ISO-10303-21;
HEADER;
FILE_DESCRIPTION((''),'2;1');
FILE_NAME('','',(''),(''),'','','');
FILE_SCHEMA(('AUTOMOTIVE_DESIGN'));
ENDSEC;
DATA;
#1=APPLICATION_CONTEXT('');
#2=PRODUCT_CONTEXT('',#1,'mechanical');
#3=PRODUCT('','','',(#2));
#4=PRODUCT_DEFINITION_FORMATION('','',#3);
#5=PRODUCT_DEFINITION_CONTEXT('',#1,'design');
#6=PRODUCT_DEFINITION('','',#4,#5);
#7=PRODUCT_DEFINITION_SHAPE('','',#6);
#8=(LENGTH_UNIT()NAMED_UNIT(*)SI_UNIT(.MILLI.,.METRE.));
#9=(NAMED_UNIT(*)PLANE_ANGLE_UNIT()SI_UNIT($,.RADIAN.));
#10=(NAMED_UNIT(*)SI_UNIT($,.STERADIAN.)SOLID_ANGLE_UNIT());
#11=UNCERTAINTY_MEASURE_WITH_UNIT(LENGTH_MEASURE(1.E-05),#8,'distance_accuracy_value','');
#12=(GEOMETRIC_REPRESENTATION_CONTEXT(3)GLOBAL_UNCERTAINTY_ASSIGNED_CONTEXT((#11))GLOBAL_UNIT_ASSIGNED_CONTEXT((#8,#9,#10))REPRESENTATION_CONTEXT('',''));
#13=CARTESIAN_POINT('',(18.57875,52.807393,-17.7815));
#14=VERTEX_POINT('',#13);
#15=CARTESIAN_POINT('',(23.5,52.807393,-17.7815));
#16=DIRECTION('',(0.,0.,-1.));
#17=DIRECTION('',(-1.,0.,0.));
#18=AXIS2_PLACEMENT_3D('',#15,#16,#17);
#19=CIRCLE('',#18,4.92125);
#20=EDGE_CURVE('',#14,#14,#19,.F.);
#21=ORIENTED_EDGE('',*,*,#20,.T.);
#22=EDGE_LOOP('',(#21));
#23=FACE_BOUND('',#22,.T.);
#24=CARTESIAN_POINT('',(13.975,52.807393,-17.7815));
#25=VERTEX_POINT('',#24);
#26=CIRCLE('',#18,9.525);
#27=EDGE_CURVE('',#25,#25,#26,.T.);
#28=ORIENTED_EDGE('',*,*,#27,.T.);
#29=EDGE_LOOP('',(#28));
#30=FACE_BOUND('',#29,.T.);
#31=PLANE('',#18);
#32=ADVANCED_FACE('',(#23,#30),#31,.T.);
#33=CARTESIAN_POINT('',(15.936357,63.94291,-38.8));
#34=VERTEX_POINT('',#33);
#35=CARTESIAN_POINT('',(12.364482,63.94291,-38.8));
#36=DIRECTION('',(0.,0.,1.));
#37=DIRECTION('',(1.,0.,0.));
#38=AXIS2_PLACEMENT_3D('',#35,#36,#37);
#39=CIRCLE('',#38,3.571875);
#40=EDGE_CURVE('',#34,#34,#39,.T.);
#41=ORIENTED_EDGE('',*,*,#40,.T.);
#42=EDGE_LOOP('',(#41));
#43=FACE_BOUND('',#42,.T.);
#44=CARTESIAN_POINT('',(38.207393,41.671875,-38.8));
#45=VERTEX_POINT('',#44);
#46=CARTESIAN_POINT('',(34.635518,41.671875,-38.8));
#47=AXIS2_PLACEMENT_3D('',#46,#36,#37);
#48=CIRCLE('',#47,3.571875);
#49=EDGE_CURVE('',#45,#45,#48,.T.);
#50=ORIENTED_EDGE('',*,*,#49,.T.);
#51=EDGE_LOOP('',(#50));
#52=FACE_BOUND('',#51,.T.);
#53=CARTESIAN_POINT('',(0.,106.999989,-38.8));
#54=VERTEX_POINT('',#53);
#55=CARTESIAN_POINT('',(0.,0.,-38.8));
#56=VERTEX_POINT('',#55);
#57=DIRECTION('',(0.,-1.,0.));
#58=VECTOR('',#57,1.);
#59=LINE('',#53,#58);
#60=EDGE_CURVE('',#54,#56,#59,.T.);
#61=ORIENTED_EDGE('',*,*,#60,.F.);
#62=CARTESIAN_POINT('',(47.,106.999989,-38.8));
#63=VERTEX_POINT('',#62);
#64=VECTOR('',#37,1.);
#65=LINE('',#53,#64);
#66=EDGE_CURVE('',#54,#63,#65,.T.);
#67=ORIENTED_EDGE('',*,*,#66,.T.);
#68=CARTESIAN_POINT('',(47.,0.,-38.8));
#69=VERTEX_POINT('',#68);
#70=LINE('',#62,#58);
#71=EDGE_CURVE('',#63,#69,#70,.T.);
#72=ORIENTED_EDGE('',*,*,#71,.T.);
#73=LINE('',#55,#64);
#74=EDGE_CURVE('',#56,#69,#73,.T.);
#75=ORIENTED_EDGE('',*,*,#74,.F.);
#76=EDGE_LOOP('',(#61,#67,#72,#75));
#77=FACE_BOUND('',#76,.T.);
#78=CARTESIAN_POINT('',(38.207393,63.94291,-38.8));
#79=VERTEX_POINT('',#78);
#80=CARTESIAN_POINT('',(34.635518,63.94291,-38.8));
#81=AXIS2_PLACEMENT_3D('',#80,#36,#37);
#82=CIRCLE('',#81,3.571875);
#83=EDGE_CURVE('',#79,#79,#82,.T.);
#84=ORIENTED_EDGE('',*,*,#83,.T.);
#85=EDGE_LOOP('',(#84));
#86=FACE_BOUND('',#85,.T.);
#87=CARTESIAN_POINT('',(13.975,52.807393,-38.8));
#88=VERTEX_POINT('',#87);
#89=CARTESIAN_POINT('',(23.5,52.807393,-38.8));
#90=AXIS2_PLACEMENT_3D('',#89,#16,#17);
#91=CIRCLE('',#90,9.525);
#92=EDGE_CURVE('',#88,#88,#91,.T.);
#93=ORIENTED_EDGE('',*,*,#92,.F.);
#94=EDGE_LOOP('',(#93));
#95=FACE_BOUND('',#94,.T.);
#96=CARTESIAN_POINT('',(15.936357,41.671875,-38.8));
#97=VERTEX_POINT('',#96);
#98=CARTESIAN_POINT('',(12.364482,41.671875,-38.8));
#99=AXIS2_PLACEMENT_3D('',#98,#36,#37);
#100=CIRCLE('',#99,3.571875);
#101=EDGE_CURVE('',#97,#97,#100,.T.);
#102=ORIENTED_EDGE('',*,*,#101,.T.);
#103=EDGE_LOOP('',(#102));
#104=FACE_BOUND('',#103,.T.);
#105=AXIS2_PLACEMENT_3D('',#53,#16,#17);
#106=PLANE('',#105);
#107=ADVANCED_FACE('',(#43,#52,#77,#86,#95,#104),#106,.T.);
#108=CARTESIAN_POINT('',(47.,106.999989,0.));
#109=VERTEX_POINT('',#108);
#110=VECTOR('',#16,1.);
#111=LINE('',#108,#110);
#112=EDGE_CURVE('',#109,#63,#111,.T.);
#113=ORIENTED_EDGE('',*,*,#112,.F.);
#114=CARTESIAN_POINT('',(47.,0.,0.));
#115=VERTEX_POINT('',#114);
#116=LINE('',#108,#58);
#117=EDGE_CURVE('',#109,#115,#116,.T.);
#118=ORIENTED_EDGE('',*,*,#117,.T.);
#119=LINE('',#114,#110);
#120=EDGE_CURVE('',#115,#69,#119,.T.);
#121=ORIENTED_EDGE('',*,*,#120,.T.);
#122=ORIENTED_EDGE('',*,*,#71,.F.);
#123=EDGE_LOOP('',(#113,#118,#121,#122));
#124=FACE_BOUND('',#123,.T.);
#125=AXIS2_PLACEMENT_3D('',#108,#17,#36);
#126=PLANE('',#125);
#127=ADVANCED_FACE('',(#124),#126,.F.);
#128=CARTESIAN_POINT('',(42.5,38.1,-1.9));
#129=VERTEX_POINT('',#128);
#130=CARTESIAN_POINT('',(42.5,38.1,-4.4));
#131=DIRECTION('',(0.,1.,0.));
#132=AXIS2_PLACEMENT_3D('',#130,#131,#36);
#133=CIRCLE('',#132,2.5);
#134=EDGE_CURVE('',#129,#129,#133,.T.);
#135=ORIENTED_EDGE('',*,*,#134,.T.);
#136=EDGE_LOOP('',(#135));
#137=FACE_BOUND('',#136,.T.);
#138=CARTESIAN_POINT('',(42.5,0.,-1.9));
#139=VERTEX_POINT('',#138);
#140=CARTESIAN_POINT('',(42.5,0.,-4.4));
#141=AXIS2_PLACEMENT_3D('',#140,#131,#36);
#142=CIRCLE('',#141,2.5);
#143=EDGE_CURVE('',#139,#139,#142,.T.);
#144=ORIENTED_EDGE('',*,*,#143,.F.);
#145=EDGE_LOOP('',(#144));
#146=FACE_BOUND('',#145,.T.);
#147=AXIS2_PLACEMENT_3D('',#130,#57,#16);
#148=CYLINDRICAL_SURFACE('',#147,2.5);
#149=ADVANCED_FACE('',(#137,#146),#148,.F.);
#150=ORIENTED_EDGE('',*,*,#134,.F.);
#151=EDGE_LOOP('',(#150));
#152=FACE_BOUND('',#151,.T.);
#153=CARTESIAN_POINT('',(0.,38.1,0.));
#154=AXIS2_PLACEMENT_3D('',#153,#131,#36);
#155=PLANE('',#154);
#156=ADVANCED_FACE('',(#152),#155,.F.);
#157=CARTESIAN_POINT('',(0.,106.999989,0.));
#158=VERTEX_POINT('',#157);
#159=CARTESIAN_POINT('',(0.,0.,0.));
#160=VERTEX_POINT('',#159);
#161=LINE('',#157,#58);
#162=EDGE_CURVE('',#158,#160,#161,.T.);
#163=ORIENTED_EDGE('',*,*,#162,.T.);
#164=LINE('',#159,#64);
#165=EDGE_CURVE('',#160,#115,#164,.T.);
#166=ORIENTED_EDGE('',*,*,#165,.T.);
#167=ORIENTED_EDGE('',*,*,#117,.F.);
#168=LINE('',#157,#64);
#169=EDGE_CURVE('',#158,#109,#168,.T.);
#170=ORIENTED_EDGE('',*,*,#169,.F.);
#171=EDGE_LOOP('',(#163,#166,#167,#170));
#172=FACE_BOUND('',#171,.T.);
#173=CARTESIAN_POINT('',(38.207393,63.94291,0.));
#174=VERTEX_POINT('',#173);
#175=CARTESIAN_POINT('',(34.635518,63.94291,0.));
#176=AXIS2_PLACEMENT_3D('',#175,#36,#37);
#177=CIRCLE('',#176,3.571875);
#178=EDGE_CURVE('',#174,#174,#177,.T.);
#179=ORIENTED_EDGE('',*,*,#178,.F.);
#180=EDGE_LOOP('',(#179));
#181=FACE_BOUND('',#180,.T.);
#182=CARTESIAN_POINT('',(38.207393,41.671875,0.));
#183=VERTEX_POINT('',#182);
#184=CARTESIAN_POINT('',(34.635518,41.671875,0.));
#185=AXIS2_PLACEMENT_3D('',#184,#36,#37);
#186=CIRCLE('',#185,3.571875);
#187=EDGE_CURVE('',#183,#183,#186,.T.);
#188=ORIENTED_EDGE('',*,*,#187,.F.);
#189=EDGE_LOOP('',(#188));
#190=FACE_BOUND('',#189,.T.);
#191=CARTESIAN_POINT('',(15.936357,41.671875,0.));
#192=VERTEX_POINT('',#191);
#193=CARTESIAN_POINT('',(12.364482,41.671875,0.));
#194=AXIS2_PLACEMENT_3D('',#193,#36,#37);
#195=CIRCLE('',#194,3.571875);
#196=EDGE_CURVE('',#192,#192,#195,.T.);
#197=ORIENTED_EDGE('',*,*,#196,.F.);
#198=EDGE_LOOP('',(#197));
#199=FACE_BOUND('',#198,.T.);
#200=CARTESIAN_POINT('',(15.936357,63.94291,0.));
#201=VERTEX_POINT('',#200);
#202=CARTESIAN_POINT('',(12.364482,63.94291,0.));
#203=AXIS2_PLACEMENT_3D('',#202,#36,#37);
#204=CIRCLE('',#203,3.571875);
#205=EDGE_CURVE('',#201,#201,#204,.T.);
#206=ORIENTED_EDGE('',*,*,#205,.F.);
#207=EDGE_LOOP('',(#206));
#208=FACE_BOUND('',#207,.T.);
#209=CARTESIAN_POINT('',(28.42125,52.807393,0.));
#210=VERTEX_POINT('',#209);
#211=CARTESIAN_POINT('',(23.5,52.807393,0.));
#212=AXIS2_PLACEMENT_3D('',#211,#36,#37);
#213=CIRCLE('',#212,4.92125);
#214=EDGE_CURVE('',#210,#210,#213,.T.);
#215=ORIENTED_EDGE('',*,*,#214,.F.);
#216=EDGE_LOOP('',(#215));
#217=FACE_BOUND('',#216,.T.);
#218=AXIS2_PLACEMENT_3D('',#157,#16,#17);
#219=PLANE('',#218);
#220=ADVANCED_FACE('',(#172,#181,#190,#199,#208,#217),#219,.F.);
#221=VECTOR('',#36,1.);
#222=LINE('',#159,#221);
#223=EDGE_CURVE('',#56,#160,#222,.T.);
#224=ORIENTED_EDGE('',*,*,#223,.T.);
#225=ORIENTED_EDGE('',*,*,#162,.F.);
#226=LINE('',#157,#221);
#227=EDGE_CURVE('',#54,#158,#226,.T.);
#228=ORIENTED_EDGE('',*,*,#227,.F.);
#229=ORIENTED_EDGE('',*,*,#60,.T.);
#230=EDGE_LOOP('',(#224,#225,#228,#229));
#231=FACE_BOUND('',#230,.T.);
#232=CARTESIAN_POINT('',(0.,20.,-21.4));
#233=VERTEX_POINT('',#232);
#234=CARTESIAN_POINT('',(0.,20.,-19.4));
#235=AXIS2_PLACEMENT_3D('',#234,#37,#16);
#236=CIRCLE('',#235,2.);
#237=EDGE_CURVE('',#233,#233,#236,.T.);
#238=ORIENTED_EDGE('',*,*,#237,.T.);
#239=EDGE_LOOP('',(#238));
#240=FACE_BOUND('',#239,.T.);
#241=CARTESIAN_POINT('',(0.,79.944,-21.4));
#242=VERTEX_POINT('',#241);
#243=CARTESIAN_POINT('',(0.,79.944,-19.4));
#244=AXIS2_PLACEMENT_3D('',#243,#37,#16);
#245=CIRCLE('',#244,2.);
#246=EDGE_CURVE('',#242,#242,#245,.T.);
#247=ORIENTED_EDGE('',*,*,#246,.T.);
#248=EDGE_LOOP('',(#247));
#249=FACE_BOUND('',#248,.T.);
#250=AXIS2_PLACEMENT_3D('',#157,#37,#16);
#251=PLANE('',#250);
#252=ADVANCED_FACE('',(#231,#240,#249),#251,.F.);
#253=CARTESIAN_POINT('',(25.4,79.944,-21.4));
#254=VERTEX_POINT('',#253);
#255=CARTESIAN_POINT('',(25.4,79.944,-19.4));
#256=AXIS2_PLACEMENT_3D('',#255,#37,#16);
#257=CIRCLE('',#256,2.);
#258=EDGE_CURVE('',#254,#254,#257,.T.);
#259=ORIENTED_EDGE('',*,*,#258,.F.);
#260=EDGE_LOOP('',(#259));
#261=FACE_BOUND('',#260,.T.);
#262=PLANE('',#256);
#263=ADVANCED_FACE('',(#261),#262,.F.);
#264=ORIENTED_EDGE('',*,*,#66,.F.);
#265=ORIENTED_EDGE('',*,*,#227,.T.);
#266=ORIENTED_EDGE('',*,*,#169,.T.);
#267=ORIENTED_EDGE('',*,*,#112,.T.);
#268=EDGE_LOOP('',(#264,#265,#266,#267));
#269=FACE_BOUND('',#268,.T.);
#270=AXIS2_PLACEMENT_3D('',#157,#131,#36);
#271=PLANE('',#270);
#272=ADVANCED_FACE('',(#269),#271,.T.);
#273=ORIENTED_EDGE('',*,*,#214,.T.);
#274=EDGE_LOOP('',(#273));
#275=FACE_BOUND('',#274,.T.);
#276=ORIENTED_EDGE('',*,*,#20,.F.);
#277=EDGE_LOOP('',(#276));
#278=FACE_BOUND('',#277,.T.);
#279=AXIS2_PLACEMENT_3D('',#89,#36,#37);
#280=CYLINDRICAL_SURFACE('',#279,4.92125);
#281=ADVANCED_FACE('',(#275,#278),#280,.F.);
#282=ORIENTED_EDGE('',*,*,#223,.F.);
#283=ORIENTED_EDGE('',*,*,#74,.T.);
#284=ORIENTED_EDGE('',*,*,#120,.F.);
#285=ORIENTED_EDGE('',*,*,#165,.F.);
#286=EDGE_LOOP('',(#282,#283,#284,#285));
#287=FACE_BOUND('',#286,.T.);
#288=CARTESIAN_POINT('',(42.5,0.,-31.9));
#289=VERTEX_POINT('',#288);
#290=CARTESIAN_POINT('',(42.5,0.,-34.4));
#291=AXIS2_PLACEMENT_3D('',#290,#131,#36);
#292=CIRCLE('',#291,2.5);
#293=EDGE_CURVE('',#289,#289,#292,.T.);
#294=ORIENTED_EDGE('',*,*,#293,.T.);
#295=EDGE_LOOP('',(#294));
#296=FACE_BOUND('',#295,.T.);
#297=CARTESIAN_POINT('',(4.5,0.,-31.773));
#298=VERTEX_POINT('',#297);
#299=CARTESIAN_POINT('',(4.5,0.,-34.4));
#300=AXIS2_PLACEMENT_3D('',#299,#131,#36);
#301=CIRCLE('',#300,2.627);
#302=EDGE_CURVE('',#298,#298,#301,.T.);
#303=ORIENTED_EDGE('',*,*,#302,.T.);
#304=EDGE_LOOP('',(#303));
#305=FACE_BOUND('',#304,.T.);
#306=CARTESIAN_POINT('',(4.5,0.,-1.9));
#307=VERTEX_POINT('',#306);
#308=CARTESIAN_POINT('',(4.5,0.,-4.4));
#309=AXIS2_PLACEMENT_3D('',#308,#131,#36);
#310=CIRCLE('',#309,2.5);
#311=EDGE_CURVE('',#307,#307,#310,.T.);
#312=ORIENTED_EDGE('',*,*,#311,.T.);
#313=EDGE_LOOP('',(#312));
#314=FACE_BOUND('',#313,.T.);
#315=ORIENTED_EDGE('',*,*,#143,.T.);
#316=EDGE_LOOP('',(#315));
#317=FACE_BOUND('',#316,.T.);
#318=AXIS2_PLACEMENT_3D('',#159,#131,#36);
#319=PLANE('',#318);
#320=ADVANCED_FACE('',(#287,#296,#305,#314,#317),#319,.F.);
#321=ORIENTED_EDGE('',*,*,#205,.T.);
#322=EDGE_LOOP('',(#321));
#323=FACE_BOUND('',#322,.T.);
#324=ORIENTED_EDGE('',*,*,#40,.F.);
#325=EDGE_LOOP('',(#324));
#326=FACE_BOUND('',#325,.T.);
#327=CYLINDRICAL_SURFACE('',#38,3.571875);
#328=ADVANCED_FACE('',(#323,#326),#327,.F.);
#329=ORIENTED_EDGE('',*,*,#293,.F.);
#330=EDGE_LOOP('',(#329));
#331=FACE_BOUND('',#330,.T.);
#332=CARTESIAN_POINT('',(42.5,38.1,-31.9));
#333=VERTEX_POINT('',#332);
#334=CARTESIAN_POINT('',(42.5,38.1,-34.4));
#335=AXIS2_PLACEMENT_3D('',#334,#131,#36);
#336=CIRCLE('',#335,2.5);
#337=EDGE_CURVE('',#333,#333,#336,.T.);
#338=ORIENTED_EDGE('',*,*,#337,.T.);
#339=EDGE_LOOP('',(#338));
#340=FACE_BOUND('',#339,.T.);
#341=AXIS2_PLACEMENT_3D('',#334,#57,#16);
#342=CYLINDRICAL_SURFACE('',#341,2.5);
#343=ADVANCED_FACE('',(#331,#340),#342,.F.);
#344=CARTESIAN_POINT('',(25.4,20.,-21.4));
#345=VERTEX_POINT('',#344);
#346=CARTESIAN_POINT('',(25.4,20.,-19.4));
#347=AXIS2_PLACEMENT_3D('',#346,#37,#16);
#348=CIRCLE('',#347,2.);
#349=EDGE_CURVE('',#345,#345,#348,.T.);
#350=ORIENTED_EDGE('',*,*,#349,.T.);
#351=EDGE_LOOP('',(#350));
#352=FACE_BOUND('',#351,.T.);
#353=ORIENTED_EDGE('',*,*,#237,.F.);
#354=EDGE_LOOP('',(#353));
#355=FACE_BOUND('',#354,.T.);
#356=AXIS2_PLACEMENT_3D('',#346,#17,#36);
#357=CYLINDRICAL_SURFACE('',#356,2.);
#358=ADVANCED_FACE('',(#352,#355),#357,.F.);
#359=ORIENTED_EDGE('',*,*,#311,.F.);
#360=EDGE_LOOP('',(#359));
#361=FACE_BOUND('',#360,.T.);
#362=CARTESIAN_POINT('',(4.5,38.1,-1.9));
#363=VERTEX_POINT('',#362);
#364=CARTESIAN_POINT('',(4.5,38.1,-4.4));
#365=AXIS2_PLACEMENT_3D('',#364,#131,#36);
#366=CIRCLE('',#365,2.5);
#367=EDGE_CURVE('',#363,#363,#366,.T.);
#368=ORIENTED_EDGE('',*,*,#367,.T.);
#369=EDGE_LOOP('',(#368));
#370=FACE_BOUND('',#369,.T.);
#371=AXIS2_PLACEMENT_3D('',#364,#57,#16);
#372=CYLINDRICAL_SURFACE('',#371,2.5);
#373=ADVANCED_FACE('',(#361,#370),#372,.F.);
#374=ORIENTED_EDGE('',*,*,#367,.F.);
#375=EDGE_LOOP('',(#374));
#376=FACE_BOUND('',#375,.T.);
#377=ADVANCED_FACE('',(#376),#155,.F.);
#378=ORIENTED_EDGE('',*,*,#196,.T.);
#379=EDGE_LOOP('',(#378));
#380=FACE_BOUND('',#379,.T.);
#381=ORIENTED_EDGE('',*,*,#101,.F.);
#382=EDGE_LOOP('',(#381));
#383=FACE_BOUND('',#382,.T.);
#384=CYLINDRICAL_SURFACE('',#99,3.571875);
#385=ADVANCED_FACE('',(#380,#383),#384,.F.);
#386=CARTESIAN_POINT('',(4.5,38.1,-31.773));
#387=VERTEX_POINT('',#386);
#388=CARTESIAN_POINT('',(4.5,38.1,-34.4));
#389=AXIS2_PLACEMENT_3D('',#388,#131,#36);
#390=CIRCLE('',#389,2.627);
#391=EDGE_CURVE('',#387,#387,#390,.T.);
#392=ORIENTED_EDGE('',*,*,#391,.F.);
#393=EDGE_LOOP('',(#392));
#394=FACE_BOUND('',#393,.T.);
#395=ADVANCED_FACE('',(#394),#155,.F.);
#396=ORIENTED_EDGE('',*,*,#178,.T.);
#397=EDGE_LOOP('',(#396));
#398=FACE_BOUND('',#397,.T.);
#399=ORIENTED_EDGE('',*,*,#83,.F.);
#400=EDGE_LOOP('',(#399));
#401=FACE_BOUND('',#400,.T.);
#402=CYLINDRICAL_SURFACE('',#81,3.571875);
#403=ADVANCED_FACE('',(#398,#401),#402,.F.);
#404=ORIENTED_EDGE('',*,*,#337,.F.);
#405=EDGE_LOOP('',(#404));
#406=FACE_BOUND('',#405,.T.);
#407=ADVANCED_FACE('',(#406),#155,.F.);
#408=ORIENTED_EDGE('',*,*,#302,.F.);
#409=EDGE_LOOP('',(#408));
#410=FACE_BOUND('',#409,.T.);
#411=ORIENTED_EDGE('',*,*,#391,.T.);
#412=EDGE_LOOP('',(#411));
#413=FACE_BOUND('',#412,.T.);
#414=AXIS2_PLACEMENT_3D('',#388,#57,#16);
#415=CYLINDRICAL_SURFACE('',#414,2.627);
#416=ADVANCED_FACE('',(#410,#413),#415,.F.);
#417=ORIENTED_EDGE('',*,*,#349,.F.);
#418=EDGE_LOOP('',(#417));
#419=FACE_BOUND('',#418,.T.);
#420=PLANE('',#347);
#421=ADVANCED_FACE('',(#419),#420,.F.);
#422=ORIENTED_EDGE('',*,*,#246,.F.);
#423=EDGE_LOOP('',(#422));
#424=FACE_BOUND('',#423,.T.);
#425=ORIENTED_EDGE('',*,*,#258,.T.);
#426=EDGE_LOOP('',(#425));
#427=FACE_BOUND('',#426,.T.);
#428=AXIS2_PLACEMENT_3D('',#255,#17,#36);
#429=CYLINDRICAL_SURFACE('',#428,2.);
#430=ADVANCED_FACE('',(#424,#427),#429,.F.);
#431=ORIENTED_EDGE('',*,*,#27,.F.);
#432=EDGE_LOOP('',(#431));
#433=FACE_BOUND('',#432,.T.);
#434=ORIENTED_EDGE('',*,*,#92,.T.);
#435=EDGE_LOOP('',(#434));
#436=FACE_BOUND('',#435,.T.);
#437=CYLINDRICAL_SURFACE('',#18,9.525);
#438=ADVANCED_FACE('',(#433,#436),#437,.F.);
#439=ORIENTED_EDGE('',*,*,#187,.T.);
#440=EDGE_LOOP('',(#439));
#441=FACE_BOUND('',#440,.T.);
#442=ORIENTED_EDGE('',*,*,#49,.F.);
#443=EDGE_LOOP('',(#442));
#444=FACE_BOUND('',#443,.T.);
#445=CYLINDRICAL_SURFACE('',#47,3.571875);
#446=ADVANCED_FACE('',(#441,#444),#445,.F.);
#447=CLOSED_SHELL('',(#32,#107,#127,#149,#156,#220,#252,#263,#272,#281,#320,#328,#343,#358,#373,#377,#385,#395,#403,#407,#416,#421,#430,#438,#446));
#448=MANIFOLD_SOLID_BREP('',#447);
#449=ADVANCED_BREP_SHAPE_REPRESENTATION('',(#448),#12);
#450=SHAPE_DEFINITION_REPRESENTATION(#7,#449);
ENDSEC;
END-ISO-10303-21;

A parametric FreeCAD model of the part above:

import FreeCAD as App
import Part
import Sketcher


def add_polygon(sketch, points):
    """Adds a closed chain of lines whose ends are joined by coincident constraints."""
    first, n = sketch.GeometryCount, len(points)
    for a, b in zip(points, points[1:] + points[:1]):
        sketch.addGeometry(Part.LineSegment(App.Vector(*a, 0), App.Vector(*b, 0)), False)
    for i in range(n):
        sketch.addConstraint(Sketcher.Constraint("Coincident", first + i, 2, first + (i + 1) % n, 1))

doc = App.newDocument("Part")
params = doc.addObject("Spreadsheet::Sheet", "Params")
for row, (alias, value) in enumerate([
    ("sketch1_width", "47 mm"),
    ("sketch1_height", "38.8 mm"),
    ("pad1_length", "106.999989 mm"),
    ("sketch3_diameter", "5 mm"),
    ("pocket2_length", "38.1 mm"),
    ("sketch4_diameter", "4 mm"),
    ("pocket3_length", "25.4 mm"),
    ("sketch5_diameter", "19.05 mm"),
    ("pocket4_length", "21.0185 mm"),
], start=1):
    params.set(f"A{row}", alias)
    params.set(f"B{row}", "=" + value)
    params.setAlias(f"B{row}", alias)

body = doc.addObject("PartDesign::Body", "Body")

sketch1 = body.newObject("Sketcher::SketchObject", "Sketch")
sketch1.AttachmentSupport = (doc.getObject("XZ_Plane"), [""])
sketch1.MapMode = "FlatFace"
add_polygon(sketch1, [(0, -38.8), (0, 0), (47, 0), (47, -38.8)])
sketch1.addConstraint([
    Sketcher.Constraint("Vertical", 0),
    Sketcher.Constraint("Horizontal", 1),
    Sketcher.Constraint("Vertical", 2),
    Sketcher.Constraint("Horizontal", 3),
    Sketcher.Constraint("Coincident", 0, 2, -1, 1),
    Sketcher.Constraint("DistanceX", 1, 1, 1, 2, 47.0),
    Sketcher.Constraint("DistanceY", 0, 1, 0, 2, 38.8),
])
sketch1.setExpression("Constraints[9]", "Params.sketch1_width")
sketch1.setExpression("Constraints[10]", "Params.sketch1_height")
pad1 = body.newObject("PartDesign::Pad", "Pad")
pad1.Profile = sketch1
pad1.setExpression("Length", "Params.pad1_length")
pad1.Reversed = True

sketch2 = body.newObject("Sketcher::SketchObject", "Sketch001")
sketch2.AttachmentSupport = (doc.getObject("XY_Plane"), [""])
sketch2.MapMode = "FlatFace"
sketch2.addGeometry([
    Part.Circle(App.Vector(12.364482, 63.94291, 0), App.Vector(0, 0, 1), 3.571875),
    Part.Circle(App.Vector(34.635518, 63.94291, 0), App.Vector(0, 0, 1), 3.571875),
    Part.Circle(App.Vector(34.635518, 41.671875, 0), App.Vector(0, 0, 1), 3.571875),
    Part.Circle(App.Vector(23.5, 52.807393, 0), App.Vector(0, 0, 1), 4.92125),
    Part.Circle(App.Vector(12.364482, 41.671875, 0), App.Vector(0, 0, 1), 3.571875),
], False)
sketch2.addConstraint([
    Sketcher.Constraint("Equal", 0, 1),
    Sketcher.Constraint("Equal", 1, 2),
    Sketcher.Constraint("Equal", 2, 4),
    Sketcher.Constraint("Horizontal", 0, 3, 1, 3),
    Sketcher.Constraint("Horizontal", 2, 3, 4, 3),
    Sketcher.Constraint("Vertical", 1, 3, 2, 3),
    Sketcher.Constraint("Vertical", 0, 3, 4, 3),
    Sketcher.Constraint("Diameter", 3, 9.8425),
    Sketcher.Constraint("DistanceX", -1, 1, 3, 3, 23.5),
    Sketcher.Constraint("Diameter", 0, 7.14375),
    Sketcher.Constraint("DistanceY", -1, 1, 0, 3, 63.94291),
    Sketcher.Constraint("DistanceX", -1, 1, 0, 3, 12.364482),
    Sketcher.Constraint("DistanceX", -1, 1, 1, 3, 34.635518),
    Sketcher.Constraint("DistanceY", -1, 1, 2, 3, 41.671875),
    Sketcher.Constraint("DistanceY", -1, 1, 3, 3, 52.807393),
])
pocket1 = body.newObject("PartDesign::Pocket", "Pocket")
pocket1.Profile = sketch2
pocket1.Type = "ThroughAll"

sketch3 = body.newObject("Sketcher::SketchObject", "Sketch002")
sketch3.AttachmentSupport = (doc.getObject("XZ_Plane"), [""])
sketch3.MapMode = "FlatFace"
sketch3.addGeometry([
    Part.Circle(App.Vector(4.5, -34.4, 0), App.Vector(0, 0, 1), 2.627),
    Part.Circle(App.Vector(4.5, -4.4, 0), App.Vector(0, 0, 1), 2.5),
    Part.Circle(App.Vector(42.5, -4.4, 0), App.Vector(0, 0, 1), 2.5),
    Part.Circle(App.Vector(42.5, -34.4, 0), App.Vector(0, 0, 1), 2.5),
], False)
sketch3.addConstraint([
    Sketcher.Constraint("Equal", 1, 2),
    Sketcher.Constraint("Equal", 2, 3),
    Sketcher.Constraint("Horizontal", 1, 3, 2, 3),
    Sketcher.Constraint("Horizontal", 0, 3, 3, 3),
    Sketcher.Constraint("Vertical", 0, 3, 1, 3),
    Sketcher.Constraint("Vertical", 2, 3, 3, 3),
    Sketcher.Constraint("Diameter", 1, 5.0),
    Sketcher.Constraint("Diameter", 0, 5.254),
    Sketcher.Constraint("DistanceY", 0, 3, 1, 3, 30.0),
    Sketcher.Constraint("DistanceX", 1, 3, 2, 3, 38.0),
    Sketcher.Constraint("DistanceX", -1, 1, 0, 3, 4.5),
    Sketcher.Constraint("DistanceY", 0, 3, -1, 1, 34.4),
])
sketch3.setExpression("Constraints[6]", "Params.sketch3_diameter")
pocket2 = body.newObject("PartDesign::Pocket", "Pocket001")
pocket2.Profile = sketch3
pocket2.setExpression("Length", "Params.pocket2_length")

sketch4 = body.newObject("Sketcher::SketchObject", "Sketch003")
sketch4.AttachmentSupport = (doc.getObject("YZ_Plane"), [""])
sketch4.MapMode = "FlatFace"
sketch4.addGeometry([
    Part.Circle(App.Vector(20, -19.4, 0), App.Vector(0, 0, 1), 2),
    Part.Circle(App.Vector(79.944, -19.4, 0), App.Vector(0, 0, 1), 2),
], False)
sketch4.addConstraint([
    Sketcher.Constraint("Equal", 0, 1),
    Sketcher.Constraint("Horizontal", 0, 3, 1, 3),
    Sketcher.Constraint("Diameter", 0, 4.0),
    Sketcher.Constraint("DistanceX", -1, 1, 0, 3, 20.0),
    Sketcher.Constraint("DistanceY", 0, 3, -1, 1, 19.4),
    Sketcher.Constraint("DistanceX", -1, 1, 1, 3, 79.944),
])
sketch4.setExpression("Constraints[2]", "Params.sketch4_diameter")
pocket3 = body.newObject("PartDesign::Pocket", "Pocket002")
pocket3.Profile = sketch4
pocket3.setExpression("Length", "Params.pocket3_length")
pocket3.Reversed = True

sketch5 = body.newObject("Sketcher::SketchObject", "Sketch004")
sketch5.AttachmentSupport = (doc.getObject("XY_Plane"), [""])
sketch5.MapMode = "FlatFace"
sketch5.AttachmentOffset = App.Placement(App.Vector(0, 0, -38.8), App.Rotation())
sketch5.addGeometry(Part.Circle(App.Vector(23.5, 52.807393, 0), App.Vector(0, 0, 1), 9.525), False)
sketch5.addConstraint([
    Sketcher.Constraint("Diameter", 0, 19.05),
    Sketcher.Constraint("DistanceX", -1, 1, 0, 3, 23.5),
    Sketcher.Constraint("DistanceY", -1, 1, 0, 3, 52.807393),
])
sketch5.setExpression("Constraints[0]", "Params.sketch5_diameter")
pocket4 = body.newObject("PartDesign::Pocket", "Pocket003")
pocket4.Profile = sketch5
pocket4.setExpression("Length", "Params.pocket4_length")
pocket4.Reversed = True

doc.recompute()
